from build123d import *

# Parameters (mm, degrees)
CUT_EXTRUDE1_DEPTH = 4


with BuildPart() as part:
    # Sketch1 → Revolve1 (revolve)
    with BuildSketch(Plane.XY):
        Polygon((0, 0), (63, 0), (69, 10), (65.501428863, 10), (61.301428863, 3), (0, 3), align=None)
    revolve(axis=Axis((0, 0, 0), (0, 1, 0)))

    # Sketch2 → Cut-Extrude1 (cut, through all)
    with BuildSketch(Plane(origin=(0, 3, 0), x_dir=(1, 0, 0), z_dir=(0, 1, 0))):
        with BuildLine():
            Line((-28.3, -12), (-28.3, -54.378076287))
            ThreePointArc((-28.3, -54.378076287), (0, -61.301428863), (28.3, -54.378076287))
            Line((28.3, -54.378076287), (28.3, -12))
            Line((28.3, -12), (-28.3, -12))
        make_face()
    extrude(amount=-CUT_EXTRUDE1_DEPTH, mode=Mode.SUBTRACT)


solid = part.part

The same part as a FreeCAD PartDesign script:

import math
import FreeCAD as App
import Part
import Sketcher
from FreeCAD import Vector


def add_polygon(sketch, points):
    """Adds a closed chain of lines whose ends are joined by coincident constraints."""
    first, n = sketch.GeometryCount, len(points)
    for a, b in zip(points, points[1:] + points[:1]):
        sketch.addGeometry(Part.LineSegment(App.Vector(*a, 0), App.Vector(*b, 0)), False)
    for i in range(n):
        sketch.addConstraint(Sketcher.Constraint("Coincident", first + i, 2, first + (i + 1) % n, 1))

doc = App.newDocument("Part")
body = doc.addObject("PartDesign::Body", "Body")

# Sketch on XY plane
sketch1 = body.newObject("Sketcher::SketchObject", "Sketch")
sketch1.AttachmentSupport = (doc.getObject("XY_Plane"), [""])
sketch1.MapMode = "FlatFace"
add_polygon(sketch1, [(0, 0), (63, 0), (69, 10), (65.501429, 10), (61.301429, 3), (0, 3)])  # lines 0-5
sketch1.addConstraint([
    Sketcher.Constraint("Horizontal", 0),
    Sketcher.Constraint("Horizontal", 2),
    Sketcher.Constraint("Horizontal", 4),
    Sketcher.Constraint("Vertical", 5),
    Sketcher.Constraint("Coincident", 5, 2, -1, 1),
    Sketcher.Constraint("Parallel", 1, 3),
    Sketcher.Constraint("DistanceX", 0, 1, 0, 2, 63.0),
    Sketcher.Constraint("DistanceY", 5, 2, 5, 1, 3.0),
    Sketcher.Constraint("DistanceX", -1, 1, 1, 2, 69.0),
    Sketcher.Constraint("DistanceY", -1, 1, 1, 2, 10.0),
    Sketcher.Constraint("DistanceX", 2, 2, 2, 1, 3.498571),
])
revolution = body.newObject("PartDesign::Revolution", "Revolution")
revolution.Profile = sketch1
revolution.ReferenceAxis = (sketch1, ["V_Axis"])
revolution.Angle = 360

# Sketch on XZ plane
sketch2 = body.newObject("Sketcher::SketchObject", "Sketch001")
sketch2.AttachmentSupport = (doc.getObject("XZ_Plane"), [""])
sketch2.MapMode = "FlatFace"
sketch2.AttachmentOffset = App.Placement(Vector(0, 0, -3), App.Rotation())
sketch2.addGeometry([
    Part.LineSegment(Vector(-28.3, 12, 0), Vector(-28.3, 54.378076, 0)),
    Part.ArcOfCircle(Part.Circle(Vector(0, 0, 0), Vector(0, 0, 1), 61.301429), math.radians(62.506164), math.radians(117.493836)),
    Part.LineSegment(Vector(28.3, 54.378076, 0), Vector(28.3, 12, 0)),
    Part.LineSegment(Vector(28.3, 12, 0), Vector(-28.3, 12, 0)),
], False)
sketch2.addConstraint([
    Sketcher.Constraint("Coincident", 0, 2, 1, 2),
    Sketcher.Constraint("Coincident", 1, 1, 2, 1),
    Sketcher.Constraint("Coincident", 2, 2, 3, 1),
    Sketcher.Constraint("Coincident", 3, 2, 0, 1),
    Sketcher.Constraint("Vertical", 0),
    Sketcher.Constraint("Vertical", 2),
    Sketcher.Constraint("Horizontal", 3),
    Sketcher.Constraint("Coincident", 1, 3, -1, 1),
    Sketcher.Constraint("Horizontal", 0, 2, 1, 1),
    Sketcher.Constraint("DistanceX", 3, 2, 3, 1, 56.6),
    Sketcher.Constraint("DistanceY", -1, 1, 2, 2, 12.0),
    Sketcher.Constraint("Radius", 1, 61.301429),
])
pocket1 = body.newObject("PartDesign::Pocket", "Pocket")
pocket1.Profile = sketch2
pocket1.Type = "ThroughAll"
pocket1.Reversed = True

doc.recompute()
